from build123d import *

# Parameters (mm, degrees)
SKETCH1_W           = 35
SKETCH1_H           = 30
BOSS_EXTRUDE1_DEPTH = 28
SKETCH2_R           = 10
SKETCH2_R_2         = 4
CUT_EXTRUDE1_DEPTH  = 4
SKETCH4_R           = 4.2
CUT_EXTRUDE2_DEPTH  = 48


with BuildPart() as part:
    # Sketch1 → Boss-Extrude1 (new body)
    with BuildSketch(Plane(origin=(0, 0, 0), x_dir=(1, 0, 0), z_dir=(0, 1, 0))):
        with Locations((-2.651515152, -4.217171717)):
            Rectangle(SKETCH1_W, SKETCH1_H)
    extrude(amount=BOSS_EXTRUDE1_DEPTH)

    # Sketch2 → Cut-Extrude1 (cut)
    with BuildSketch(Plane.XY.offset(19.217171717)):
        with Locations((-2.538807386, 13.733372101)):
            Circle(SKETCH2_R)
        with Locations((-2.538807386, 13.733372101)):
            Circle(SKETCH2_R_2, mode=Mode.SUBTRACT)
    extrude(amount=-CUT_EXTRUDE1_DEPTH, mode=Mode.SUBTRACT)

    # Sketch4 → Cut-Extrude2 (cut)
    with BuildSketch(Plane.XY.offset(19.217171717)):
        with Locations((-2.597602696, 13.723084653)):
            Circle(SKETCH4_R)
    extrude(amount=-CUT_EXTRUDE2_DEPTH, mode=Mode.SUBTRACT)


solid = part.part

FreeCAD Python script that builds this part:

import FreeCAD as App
import Part
import Sketcher
from FreeCAD import Vector
Q = App.Units.Quantity


def add_polygon(sketch, points):
    """Adds a closed chain of lines whose ends are joined by coincident constraints."""
    first, n = sketch.GeometryCount, len(points)
    for a, b in zip(points, points[1:] + points[:1]):
        sketch.addGeometry(Part.LineSegment(App.Vector(*a, 0), App.Vector(*b, 0)), False)
    for i in range(n):
        sketch.addConstraint(Sketcher.Constraint("Coincident", first + i, 2, first + (i + 1) % n, 1))

doc = App.newDocument("Part")
body = doc.addObject("PartDesign::Body", "Body")

# Sketch on XZ plane
sketch1 = doc.addObject("Sketcher::SketchObject", "Sketch")
body.addObject(sketch1)
sketch1.AttachmentSupport = (doc.XZ_Plane, [""])
sketch1.MapMode = "FlatFace"
add_polygon(sketch1, [(-20.151515, -10.782828), (-20.151515, 19.217172), (14.848485, 19.217172), (14.848485, -10.782828)])  # lines 0-3
sketch1.addConstraint([
    Sketcher.Constraint("Vertical", 0),
    Sketcher.Constraint("Horizontal", 1),
    Sketcher.Constraint("Vertical", 2),
    Sketcher.Constraint("Horizontal", 3),
    Sketcher.Constraint("DistanceX", 1, 1, 1, 2, Q("35 mm")),
    Sketcher.Constraint("DistanceY", 0, 1, 0, 2, Q("30 mm")),
    Sketcher.Constraint("DistanceY", -1, 1, 0, 2, Q("19.217172 mm")),
    Sketcher.Constraint("DistanceX", 0, 2, -1, 1, Q("20.151515 mm")),
])
pad1 = doc.addObject("PartDesign::Pad", "Pad")
body.addObject(pad1)
pad1.Profile = sketch1
pad1.Length = 28
pad1.Reversed = True

# Sketch on XY plane
sketch2 = doc.addObject("Sketcher::SketchObject", "Sketch001")
body.addObject(sketch2)
sketch2.AttachmentSupport = (doc.XY_Plane, [""])
sketch2.MapMode = "FlatFace"
sketch2.AttachmentOffset = App.Placement(Vector(0, 0, 19.217172), App.Rotation())
sketch2.addGeometry([
    Part.Circle(Vector(-2.538807, 13.733372, 0), Vector(0, 0, 1), 10),
    Part.Circle(Vector(-2.538807, 13.733372, 0), Vector(0, 0, 1), 4),
], False)
sketch2.addConstraint([
    Sketcher.Constraint("Coincident", 1, 3, 0, 3),
    Sketcher.Constraint("Diameter", 0, Q("20 mm")),
    Sketcher.Constraint("Diameter", 1, Q("8 mm")),
    Sketcher.Constraint("DistanceX", 0, 3, -1, 1, Q("2.538807 mm")),
    Sketcher.Constraint("DistanceY", -1, 1, 0, 3, Q("13.733372 mm")),
])
pocket1 = doc.addObject("PartDesign::Pocket", "Pocket")
body.addObject(pocket1)
pocket1.Profile = sketch2
pocket1.Length = 4

# Sketch on XY plane
sketch3 = doc.addObject("Sketcher::SketchObject", "Sketch002")
body.addObject(sketch3)
sketch3.AttachmentSupport = (doc.XY_Plane, [""])
sketch3.MapMode = "FlatFace"
sketch3.AttachmentOffset = App.Placement(Vector(0, 0, 19.217172), App.Rotation())
sketch3.addGeometry(Part.Circle(Vector(-2.597603, 13.723085, 0), Vector(0, 0, 1), 4.2), False)
sketch3.addConstraint([
    Sketcher.Constraint("Diameter", 0, Q("8.4 mm")),
    Sketcher.Constraint("DistanceX", 0, 3, -1, 1, Q("2.597603 mm")),
    Sketcher.Constraint("DistanceY", -1, 1, 0, 3, Q("13.723085 mm")),
])
pocket2 = doc.addObject("PartDesign::Pocket", "Pocket001")
body.addObject(pocket2)
pocket2.Profile = sketch3
pocket2.Length = 48

doc.recompute()
